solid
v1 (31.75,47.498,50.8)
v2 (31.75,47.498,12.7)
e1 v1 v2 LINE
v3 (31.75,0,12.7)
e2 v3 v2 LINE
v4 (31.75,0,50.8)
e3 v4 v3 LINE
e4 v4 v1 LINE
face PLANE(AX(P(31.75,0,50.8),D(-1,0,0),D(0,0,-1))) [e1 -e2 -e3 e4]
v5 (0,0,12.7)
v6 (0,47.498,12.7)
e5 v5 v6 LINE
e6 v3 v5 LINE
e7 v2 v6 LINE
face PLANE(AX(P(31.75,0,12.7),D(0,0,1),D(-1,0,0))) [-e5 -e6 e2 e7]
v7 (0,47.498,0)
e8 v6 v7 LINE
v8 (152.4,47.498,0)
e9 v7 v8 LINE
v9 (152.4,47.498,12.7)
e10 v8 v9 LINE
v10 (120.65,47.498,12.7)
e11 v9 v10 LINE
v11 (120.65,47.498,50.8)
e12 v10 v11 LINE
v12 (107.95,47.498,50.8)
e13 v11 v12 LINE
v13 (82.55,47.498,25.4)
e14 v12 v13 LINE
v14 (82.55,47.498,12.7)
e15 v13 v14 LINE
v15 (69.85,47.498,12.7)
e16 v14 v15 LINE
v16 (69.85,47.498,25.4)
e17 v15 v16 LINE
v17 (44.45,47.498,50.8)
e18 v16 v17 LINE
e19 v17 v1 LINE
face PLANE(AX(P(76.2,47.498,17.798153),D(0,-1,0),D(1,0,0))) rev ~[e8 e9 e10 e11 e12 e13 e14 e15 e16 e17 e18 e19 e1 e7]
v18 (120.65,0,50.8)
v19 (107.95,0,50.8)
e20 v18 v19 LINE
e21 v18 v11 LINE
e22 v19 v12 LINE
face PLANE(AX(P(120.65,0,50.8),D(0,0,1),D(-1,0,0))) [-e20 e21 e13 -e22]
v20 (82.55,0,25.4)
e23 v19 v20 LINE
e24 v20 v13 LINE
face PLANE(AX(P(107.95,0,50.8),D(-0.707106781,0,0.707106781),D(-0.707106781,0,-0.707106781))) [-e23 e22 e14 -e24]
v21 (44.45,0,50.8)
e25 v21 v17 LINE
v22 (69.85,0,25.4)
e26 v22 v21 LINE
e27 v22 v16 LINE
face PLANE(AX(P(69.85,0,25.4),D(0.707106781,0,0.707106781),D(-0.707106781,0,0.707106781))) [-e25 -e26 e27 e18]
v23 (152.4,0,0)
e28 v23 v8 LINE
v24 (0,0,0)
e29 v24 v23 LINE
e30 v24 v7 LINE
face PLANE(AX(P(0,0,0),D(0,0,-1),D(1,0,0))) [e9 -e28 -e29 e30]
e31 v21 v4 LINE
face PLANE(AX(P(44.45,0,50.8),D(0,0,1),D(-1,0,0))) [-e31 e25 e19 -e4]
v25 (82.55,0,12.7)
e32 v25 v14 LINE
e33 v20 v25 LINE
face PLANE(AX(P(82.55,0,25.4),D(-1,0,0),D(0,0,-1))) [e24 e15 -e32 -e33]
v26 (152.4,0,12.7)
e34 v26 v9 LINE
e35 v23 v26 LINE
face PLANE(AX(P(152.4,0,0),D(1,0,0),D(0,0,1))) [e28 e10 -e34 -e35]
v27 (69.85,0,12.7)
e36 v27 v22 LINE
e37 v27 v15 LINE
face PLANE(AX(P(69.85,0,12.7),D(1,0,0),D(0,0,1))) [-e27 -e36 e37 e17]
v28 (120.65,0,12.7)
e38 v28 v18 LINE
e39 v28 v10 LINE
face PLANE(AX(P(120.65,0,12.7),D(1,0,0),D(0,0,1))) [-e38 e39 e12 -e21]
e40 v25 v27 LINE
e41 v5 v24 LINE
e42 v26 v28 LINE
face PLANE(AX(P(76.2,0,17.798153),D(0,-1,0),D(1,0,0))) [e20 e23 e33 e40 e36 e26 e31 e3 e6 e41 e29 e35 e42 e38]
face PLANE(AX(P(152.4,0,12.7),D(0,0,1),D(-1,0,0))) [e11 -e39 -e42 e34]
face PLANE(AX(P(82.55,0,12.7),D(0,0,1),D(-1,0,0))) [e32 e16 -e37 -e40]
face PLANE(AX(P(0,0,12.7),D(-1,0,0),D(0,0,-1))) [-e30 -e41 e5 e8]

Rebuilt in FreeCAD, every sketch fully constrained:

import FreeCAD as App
import Part
import Sketcher
from FreeCAD import Vector
Q = App.Units.Quantity


def add_polygon(sketch, points):
    """Adds a closed chain of lines whose ends are joined by coincident constraints."""
    first, n = sketch.GeometryCount, len(points)
    for a, b in zip(points, points[1:] + points[:1]):
        sketch.addGeometry(Part.LineSegment(App.Vector(*a, 0), App.Vector(*b, 0)), False)
    for i in range(n):
        sketch.addConstraint(Sketcher.Constraint("Coincident", first + i, 2, first + (i + 1) % n, 1))

doc = App.newDocument("Part")
body = doc.addObject("PartDesign::Body", "Body")

sketch1 = doc.addObject("Sketcher::SketchObject", "Sketch")
body.addObject(sketch1)
sketch1.AttachmentSupport = (doc.XZ_Plane, [""])
sketch1.MapMode = "FlatFace"
add_polygon(sketch1, [(0, 12.7), (0, 0), (152.4, 0), (152.4, 12.7), (120.65, 12.7), (120.65, 50.8), (107.95, 50.8), (82.55, 25.4), (82.55, 12.7), (69.85, 12.7), (69.85, 25.4), (44.45, 50.8), (31.75, 50.8), (31.75, 12.7)])
sketch1.addConstraint([
    Sketcher.Constraint("Vertical", 0),
    Sketcher.Constraint("Horizontal", 1),
    Sketcher.Constraint("Vertical", 2),
    Sketcher.Constraint("Horizontal", 3),
    Sketcher.Constraint("Vertical", 4),
    Sketcher.Constraint("Horizontal", 5),
    Sketcher.Constraint("Vertical", 7),
    Sketcher.Constraint("Horizontal", 8),
    Sketcher.Constraint("Vertical", 9),
    Sketcher.Constraint("Horizontal", 11),
    Sketcher.Constraint("Vertical", 12),
    Sketcher.Constraint("Horizontal", 13),
    Sketcher.Constraint("Coincident", 0, 2, -1, 1),
    Sketcher.Constraint("Perpendicular", 6, 10),
    Sketcher.Constraint("Horizontal", 3, 2, 7, 2),
    Sketcher.Constraint("Horizontal", 6, 2, 9, 2),
    Sketcher.Constraint("Horizontal", 5, 2, 10, 2),
    Sketcher.Constraint("Horizontal", 8, 2, 12, 2),
    Sketcher.Constraint("Equal", 5, 8),
    Sketcher.Constraint("Equal", 8, 11),
    Sketcher.Constraint("Equal", 3, 13),
    Sketcher.Constraint("Equal", 11, 0),
    Sketcher.Constraint("Equal", 2, 7),
    Sketcher.Constraint("Equal", 6, 10),
    Sketcher.Constraint("DistanceX", 1, 1, 1, 2, Q("6 in")),
    Sketcher.Constraint("DistanceX", 5, 2, 5, 1, Q("0.5 in")),
    Sketcher.Constraint("DistanceY", 4, 1, 4, 2, Q("1.5 in")),
])
pad1 = doc.addObject("PartDesign::Pad", "Pad")
body.addObject(pad1)
pad1.Profile = sketch1
pad1.Length = Q("1.87 in")
pad1.Reversed = True

doc.recompute()
